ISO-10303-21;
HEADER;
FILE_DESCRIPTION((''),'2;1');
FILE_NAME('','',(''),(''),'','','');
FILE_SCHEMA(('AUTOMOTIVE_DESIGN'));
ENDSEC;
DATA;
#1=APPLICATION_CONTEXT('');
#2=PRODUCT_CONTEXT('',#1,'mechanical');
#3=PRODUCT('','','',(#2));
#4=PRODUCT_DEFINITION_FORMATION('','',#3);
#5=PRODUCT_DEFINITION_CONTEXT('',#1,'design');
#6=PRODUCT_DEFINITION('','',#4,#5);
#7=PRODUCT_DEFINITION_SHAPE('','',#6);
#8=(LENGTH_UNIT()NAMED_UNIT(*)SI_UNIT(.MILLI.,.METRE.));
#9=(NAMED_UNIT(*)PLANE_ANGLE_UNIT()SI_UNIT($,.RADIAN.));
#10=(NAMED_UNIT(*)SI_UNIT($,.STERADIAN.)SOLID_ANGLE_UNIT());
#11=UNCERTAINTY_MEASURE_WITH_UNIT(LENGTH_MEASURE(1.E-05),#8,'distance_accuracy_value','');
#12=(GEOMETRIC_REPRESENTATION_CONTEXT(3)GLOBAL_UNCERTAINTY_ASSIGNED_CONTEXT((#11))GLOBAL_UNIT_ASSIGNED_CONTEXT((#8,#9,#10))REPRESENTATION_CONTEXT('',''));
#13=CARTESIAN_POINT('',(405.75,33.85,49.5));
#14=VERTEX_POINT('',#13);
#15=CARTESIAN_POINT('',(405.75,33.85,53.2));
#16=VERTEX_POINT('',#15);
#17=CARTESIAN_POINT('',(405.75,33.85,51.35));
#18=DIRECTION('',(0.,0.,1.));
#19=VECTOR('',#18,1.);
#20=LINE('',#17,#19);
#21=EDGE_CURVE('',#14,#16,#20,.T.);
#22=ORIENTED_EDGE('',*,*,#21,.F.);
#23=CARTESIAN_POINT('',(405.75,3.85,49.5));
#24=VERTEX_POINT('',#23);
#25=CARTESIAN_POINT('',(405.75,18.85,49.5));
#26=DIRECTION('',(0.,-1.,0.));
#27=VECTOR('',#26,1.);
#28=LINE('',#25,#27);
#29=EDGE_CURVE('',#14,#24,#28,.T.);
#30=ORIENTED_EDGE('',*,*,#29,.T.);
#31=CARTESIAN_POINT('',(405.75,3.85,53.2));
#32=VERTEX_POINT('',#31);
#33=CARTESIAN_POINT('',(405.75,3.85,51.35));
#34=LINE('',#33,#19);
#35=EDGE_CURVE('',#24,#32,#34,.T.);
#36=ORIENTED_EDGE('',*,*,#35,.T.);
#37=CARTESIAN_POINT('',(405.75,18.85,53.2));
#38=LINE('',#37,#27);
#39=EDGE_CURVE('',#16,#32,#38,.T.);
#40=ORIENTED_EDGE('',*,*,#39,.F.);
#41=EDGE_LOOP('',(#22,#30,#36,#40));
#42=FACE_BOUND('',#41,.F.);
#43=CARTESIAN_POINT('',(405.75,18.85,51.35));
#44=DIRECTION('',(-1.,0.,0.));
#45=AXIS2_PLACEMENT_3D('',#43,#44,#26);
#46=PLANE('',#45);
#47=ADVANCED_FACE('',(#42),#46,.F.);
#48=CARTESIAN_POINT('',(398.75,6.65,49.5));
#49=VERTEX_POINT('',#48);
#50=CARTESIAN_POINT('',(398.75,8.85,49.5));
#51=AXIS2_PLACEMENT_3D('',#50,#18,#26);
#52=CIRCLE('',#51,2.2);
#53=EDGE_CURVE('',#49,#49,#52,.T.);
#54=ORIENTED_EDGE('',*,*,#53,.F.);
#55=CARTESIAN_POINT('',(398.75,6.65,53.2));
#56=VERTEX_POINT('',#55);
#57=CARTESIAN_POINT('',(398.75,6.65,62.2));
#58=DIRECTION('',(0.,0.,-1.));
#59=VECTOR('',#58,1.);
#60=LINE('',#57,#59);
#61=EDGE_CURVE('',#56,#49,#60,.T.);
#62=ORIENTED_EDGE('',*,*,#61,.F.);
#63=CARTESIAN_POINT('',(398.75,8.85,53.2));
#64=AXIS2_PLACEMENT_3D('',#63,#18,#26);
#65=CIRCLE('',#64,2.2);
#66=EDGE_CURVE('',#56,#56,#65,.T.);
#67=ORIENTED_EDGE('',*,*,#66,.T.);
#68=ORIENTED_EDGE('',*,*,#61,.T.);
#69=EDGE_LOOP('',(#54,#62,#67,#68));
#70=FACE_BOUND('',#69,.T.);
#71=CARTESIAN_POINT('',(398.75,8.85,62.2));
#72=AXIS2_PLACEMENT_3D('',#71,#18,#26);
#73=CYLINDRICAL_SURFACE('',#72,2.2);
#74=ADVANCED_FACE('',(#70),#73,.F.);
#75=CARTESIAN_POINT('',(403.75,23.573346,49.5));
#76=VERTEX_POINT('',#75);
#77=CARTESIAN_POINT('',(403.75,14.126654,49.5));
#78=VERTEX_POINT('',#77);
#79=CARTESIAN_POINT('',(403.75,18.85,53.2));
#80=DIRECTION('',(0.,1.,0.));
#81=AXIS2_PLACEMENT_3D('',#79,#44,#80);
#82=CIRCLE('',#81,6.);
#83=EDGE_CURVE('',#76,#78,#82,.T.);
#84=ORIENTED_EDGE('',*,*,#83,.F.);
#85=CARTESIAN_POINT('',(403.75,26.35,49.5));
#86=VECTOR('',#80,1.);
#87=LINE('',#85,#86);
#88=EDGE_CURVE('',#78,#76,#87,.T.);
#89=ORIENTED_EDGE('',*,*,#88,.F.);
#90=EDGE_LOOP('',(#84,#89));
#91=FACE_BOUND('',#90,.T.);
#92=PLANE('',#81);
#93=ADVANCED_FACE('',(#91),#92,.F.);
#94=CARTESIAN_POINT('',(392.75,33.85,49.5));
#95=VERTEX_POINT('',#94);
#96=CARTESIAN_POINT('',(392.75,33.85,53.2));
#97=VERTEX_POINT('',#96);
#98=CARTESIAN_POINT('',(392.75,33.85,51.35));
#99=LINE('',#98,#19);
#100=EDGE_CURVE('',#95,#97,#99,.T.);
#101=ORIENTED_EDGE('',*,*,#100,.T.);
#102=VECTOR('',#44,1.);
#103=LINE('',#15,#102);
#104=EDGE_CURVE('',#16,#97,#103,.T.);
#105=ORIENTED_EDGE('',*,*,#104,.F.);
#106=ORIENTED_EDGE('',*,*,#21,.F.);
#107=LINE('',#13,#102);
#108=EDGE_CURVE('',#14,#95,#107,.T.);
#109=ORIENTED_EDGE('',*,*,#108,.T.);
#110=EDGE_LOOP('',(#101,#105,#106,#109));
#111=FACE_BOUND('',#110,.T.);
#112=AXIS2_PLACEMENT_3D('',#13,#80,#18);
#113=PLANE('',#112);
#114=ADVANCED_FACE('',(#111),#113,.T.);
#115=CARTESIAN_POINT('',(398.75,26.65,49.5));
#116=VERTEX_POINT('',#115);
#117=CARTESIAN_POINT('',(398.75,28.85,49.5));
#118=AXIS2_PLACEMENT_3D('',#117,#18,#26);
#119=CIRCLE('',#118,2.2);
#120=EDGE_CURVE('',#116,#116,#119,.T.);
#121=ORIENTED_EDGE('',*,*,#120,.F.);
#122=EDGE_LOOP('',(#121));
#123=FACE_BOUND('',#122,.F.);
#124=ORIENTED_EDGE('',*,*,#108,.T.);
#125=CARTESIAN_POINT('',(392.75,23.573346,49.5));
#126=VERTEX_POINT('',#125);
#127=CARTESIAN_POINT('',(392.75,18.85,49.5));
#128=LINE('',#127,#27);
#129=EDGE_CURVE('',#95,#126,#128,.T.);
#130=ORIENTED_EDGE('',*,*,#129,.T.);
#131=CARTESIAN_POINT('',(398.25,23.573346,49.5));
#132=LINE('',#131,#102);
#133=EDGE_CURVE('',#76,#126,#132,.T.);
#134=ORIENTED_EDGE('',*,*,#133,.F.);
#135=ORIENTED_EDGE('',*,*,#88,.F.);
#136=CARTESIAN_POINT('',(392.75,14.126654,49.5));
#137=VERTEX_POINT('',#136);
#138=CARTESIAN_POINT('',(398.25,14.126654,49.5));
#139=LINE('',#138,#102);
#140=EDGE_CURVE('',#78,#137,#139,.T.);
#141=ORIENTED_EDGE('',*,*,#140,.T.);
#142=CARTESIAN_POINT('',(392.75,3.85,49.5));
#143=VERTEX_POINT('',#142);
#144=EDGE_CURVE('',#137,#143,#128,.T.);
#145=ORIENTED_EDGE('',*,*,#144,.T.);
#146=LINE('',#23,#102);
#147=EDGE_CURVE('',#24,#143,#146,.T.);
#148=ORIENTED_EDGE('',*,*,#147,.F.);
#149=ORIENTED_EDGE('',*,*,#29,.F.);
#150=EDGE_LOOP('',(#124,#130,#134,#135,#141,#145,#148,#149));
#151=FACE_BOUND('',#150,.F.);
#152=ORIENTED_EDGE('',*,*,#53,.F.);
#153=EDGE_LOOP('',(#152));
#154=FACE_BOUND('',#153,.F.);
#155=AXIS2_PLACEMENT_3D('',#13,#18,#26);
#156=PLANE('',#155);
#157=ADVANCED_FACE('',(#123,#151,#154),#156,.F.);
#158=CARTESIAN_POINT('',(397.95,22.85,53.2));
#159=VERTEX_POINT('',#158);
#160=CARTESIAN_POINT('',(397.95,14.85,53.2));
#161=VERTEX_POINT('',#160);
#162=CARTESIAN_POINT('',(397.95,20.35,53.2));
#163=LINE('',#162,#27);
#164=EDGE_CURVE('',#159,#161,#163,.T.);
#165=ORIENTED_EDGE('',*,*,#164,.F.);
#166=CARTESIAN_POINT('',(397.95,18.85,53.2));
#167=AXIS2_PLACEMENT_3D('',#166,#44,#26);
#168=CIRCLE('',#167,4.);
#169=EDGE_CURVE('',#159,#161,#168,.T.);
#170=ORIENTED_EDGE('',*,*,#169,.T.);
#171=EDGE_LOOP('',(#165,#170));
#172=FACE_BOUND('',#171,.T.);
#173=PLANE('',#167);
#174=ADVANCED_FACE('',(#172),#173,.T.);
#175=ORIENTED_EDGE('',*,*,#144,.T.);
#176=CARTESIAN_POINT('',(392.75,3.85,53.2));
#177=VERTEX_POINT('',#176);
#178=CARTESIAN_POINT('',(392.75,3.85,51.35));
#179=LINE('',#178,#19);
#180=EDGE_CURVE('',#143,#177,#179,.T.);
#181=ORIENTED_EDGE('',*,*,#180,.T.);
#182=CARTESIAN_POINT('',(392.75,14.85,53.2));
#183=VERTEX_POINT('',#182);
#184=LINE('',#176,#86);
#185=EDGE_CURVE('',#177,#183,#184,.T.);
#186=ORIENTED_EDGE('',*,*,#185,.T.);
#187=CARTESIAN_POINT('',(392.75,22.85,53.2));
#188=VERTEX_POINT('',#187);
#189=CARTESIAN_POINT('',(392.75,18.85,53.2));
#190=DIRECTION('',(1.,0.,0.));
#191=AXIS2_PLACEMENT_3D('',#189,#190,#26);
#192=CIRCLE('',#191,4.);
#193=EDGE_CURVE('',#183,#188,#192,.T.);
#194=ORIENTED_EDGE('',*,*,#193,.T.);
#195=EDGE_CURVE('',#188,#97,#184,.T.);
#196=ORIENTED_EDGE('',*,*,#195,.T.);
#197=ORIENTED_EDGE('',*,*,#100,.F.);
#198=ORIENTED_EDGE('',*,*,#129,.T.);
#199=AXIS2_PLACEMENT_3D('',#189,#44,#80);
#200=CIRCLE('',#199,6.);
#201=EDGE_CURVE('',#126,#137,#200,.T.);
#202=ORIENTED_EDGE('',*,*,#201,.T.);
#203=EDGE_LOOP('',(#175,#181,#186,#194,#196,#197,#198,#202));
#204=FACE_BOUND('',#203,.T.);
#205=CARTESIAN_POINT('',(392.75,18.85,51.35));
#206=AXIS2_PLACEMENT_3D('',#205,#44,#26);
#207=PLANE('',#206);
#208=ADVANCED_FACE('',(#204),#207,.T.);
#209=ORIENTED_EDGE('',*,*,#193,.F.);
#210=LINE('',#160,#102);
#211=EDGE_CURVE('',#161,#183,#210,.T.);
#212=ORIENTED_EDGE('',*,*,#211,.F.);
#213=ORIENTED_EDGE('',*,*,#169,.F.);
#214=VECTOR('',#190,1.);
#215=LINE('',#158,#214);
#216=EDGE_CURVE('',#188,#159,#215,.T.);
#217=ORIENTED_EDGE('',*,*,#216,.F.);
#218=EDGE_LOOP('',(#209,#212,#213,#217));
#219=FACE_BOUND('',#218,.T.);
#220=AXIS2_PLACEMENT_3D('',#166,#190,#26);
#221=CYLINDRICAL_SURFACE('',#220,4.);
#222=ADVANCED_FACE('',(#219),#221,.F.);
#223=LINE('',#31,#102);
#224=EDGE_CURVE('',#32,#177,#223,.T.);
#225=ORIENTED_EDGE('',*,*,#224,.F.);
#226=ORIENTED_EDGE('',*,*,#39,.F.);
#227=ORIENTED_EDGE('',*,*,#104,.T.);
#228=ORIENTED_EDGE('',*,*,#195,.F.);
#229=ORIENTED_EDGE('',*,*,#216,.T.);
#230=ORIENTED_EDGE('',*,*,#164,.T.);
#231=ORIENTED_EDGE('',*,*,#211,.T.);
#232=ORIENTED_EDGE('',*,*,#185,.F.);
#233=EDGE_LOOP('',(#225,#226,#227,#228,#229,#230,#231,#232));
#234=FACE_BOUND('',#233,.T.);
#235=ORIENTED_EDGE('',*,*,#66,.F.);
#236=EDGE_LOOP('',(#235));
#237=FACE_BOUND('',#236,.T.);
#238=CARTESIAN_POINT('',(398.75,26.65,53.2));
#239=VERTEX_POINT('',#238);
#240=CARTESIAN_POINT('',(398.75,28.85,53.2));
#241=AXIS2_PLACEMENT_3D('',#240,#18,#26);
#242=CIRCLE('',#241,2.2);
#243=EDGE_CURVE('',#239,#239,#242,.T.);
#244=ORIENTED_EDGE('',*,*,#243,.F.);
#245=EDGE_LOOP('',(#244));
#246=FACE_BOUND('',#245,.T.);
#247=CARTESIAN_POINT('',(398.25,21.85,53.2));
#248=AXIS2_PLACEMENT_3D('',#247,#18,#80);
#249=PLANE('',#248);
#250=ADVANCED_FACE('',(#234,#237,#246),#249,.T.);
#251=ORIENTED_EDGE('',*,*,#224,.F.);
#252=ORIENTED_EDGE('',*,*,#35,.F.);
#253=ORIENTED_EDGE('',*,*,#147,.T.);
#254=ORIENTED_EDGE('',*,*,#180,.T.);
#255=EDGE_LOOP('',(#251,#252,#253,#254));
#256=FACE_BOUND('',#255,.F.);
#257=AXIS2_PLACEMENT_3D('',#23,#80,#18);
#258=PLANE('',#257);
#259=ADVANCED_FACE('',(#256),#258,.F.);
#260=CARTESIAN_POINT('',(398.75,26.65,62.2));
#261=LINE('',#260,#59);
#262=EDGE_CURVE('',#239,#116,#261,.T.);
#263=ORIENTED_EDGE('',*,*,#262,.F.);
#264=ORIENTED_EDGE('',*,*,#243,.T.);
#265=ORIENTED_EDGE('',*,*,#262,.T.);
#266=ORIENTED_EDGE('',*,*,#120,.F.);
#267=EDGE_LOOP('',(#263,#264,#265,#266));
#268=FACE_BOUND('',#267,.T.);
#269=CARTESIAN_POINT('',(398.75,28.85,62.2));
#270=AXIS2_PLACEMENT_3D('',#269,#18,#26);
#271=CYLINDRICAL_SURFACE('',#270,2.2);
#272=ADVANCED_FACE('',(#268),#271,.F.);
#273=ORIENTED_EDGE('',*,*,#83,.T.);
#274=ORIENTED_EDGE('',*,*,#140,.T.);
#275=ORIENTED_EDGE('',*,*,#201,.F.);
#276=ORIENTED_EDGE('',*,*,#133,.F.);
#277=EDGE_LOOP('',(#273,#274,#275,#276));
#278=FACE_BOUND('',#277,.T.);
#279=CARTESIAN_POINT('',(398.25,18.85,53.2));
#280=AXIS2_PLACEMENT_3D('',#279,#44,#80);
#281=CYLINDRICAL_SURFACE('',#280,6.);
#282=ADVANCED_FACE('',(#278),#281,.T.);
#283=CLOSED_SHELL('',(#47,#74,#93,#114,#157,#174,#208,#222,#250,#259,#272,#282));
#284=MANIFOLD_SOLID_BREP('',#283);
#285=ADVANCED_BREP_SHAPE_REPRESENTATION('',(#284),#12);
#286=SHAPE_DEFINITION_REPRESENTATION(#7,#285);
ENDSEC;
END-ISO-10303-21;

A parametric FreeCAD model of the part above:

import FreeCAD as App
import Part
import Sketcher

V = App.Vector

doc = App.newDocument("Part")
body = doc.addObject("PartDesign::Body", "Body")

# Sketch on XZ plane
sketch1 = body.newObject("Sketcher::SketchObject", "Sketch")
sketch1.AttachmentSupport = (doc.getObject("XZ_Plane"), [""])
sketch1.MapMode = "FlatFace"
sketch1.AttachmentOffset = App.Placement(V(0, 0, -9), App.Rotation())
sketch1.addGeometry(Part.Circle(V(-10, 5, 0), V(0, 0, 1), 2.2), False)
sketch1.addConstraint(Sketcher.Constraint("Diameter", 0, 4.4))
sketch1.addConstraint(Sketcher.Constraint("DistanceX", 0, 3, -1, 1, 10.0))
sketch1.addConstraint(Sketcher.Constraint("DistanceY", -1, 1, 0, 3, 5.0))
pad1 = body.newObject("PartDesign::Pad", "Pad")
pad1.Profile = sketch1
pad1.Length = 20
body2 = doc.addObject("PartDesign::Body", "Body001")

# Sketch on XZ plane
sketch2 = body2.newObject("Sketcher::SketchObject", "Sketch001")
sketch2.AttachmentSupport = (doc.getObject("XZ_Plane001"), [""])
sketch2.MapMode = "FlatFace"
sketch2.AttachmentOffset = App.Placement(V(0, 0, -9), App.Rotation())
sketch2.addGeometry(Part.Circle(V(10, 5, 0), V(0, 0, 1), 2.2), False)
sketch2.addConstraint(Sketcher.Constraint("Diameter", 0, 4.4))
sketch2.addConstraint(Sketcher.Constraint("DistanceX", -1, 1, 0, 3, 10.0))
sketch2.addConstraint(Sketcher.Constraint("DistanceY", -1, 1, 0, 3, 5.0))
pad2 = body2.newObject("PartDesign::Pad", "Pad001")
pad2.Profile = sketch2
pad2.Length = 20
body3 = doc.addObject("PartDesign::Body", "Body002")

# Sketch on XY plane
sketch3 = body3.newObject("Sketcher::SketchObject", "Sketch002")
sketch3.AttachmentSupport = (doc.getObject("XY_Plane002"), [""])
sketch3.MapMode = "FlatFace"
sketch3.AttachmentOffset = App.Placement(V(0, 0, 5.8), App.Rotation())
sketch3.addGeometry(Part.Circle(V(0, 0, 0), V(0, 0, 1), 4), False)
sketch3.addConstraint(Sketcher.Constraint("Coincident", 0, 3, -1, 1))
sketch3.addConstraint(Sketcher.Constraint("Diameter", 0, 8.0))
pad3 = body3.newObject("PartDesign::Pad", "Pad002")
pad3.Profile = sketch3
pad3.Length = 6.5
body4 = doc.addObject("PartDesign::Body", "Body003")

# Sketch on XZ plane
sketch4 = body4.newObject("Sketcher::SketchObject", "Sketch003")
sketch4.AttachmentSupport = (doc.getObject("XZ_Plane003"), [""])
sketch4.MapMode = "FlatFace"
sketch4.addGeometry(Part.LineSegment(V(0, 11, 0), V(0, 0, 0)), False)
sketch4.addGeometry(Part.LineSegment(V(0, 0, 0), V(-6, 0, 0)), False)
sketch4.addGeometry(Part.LineSegment(V(-6, 0, 0), V(-6, 11, 0)), False)
sketch4.addGeometry(Part.LineSegment(V(-6, 11, 0), V(0, 11, 0)), False)
sketch4.addConstraint(Sketcher.Constraint("Coincident", 0, 2, 1, 1))
sketch4.addConstraint(Sketcher.Constraint("Coincident", 1, 2, 2, 1))
sketch4.addConstraint(Sketcher.Constraint("Coincident", 2, 2, 3, 1))
sketch4.addConstraint(Sketcher.Constraint("Coincident", 3, 2, 0, 1))
sketch4.addConstraint(Sketcher.Constraint("Vertical", 0))
sketch4.addConstraint(Sketcher.Constraint("Horizontal", 1))
sketch4.addConstraint(Sketcher.Constraint("Vertical", 2))
sketch4.addConstraint(Sketcher.Constraint("Horizontal", 3))
sketch4.addConstraint(Sketcher.Constraint("Coincident", 0, 2, -1, 1))
sketch4.addConstraint(Sketcher.Constraint("DistanceX", 1, 2, 1, 1, 6.0))
sketch4.addConstraint(Sketcher.Constraint("DistanceY", 0, 2, 0, 1, 11.0))
revolution = body4.newObject("PartDesign::Revolution", "Revolution")
revolution.Profile = sketch4
revolution.ReferenceAxis = (sketch4, ["V_Axis"])
revolution.Angle = 180
body5 = doc.addObject("PartDesign::Body", "Body004")

# Sketch on XY plane
sketch5 = body5.newObject("Sketcher::SketchObject", "Sketch004")
sketch5.AttachmentSupport = (doc.getObject("XY_Plane004"), [""])
sketch5.MapMode = "FlatFace"
sketch5.AttachmentOffset = App.Placement(V(0, 0, -2), App.Rotation())
sketch5.addGeometry(Part.LineSegment(V(-15, 0, 0), V(-15, -3.7, 0)), False)
sketch5.addGeometry(Part.LineSegment(V(-15, -3.7, 0), V(15, -3.7, 0)), False)
sketch5.addGeometry(Part.LineSegment(V(15, -3.7, 0), V(15, 0, 0)), False)
sketch5.addGeometry(Part.LineSegment(V(15, 0, 0), V(-15, 0, 0)), False)
sketch5.addConstraint(Sketcher.Constraint("Coincident", 0, 2, 1, 1))
sketch5.addConstraint(Sketcher.Constraint("Coincident", 1, 2, 2, 1))
sketch5.addConstraint(Sketcher.Constraint("Coincident", 2, 2, 3, 1))
sketch5.addConstraint(Sketcher.Constraint("Coincident", 3, 2, 0, 1))
sketch5.addConstraint(Sketcher.Constraint("Vertical", 0))
sketch5.addConstraint(Sketcher.Constraint("Horizontal", 1))
sketch5.addConstraint(Sketcher.Constraint("Vertical", 2))
sketch5.addConstraint(Sketcher.Constraint("Horizontal", 3))
sketch5.addConstraint(Sketcher.Constraint("Symmetric", 2, 2, 3, 2, -1, 1))
sketch5.addConstraint(Sketcher.Constraint("DistanceX", 1, 1, 1, 2, 30.0))
sketch5.addConstraint(Sketcher.Constraint("DistanceY", 0, 2, 0, 1, 3.7))
pad4 = body5.newObject("PartDesign::Pad", "Pad003")
pad4.Profile = sketch5
pad4.Length = 13
doc.recompute()

boolean = body5.newObject("PartDesign::Boolean", "Boolean")
boolean.Type = "Fuse"
boolean.addObjects([body4])
doc.recompute()

boolean2 = body5.newObject("PartDesign::Boolean", "Boolean001")
boolean2.Type = "Cut"
boolean2.addObjects([body3])
doc.recompute()

boolean3 = body5.newObject("PartDesign::Boolean", "Boolean002")
boolean3.Type = "Cut"
boolean3.addObjects([body2])
doc.recompute()

boolean4 = body5.newObject("PartDesign::Boolean", "Boolean003")
boolean4.Type = "Cut"
boolean4.addObjects([body])
body6 = doc.addObject("PartDesign::Body", "Body005")
doc.recompute()

body5.Placement = App.Placement(V(0, 0, 0), App.Rotation(V(1, 0, 0), 90))
boolean5 = body6.newObject("PartDesign::Boolean", "Boolean004")
boolean5.Type = "Fuse"
boolean5.addObjects([body5])
body7 = doc.addObject("PartDesign::Body", "Body006")
doc.recompute()

body6.Placement = App.Placement(V(403.75, 18.85, 53.2), App.Rotation(V(0, 0, 1), 270))
boolean6 = body7.newObject("PartDesign::Boolean", "Boolean005")
boolean6.Type = "Fuse"
boolean6.addObjects([body6])

doc.recompute()
